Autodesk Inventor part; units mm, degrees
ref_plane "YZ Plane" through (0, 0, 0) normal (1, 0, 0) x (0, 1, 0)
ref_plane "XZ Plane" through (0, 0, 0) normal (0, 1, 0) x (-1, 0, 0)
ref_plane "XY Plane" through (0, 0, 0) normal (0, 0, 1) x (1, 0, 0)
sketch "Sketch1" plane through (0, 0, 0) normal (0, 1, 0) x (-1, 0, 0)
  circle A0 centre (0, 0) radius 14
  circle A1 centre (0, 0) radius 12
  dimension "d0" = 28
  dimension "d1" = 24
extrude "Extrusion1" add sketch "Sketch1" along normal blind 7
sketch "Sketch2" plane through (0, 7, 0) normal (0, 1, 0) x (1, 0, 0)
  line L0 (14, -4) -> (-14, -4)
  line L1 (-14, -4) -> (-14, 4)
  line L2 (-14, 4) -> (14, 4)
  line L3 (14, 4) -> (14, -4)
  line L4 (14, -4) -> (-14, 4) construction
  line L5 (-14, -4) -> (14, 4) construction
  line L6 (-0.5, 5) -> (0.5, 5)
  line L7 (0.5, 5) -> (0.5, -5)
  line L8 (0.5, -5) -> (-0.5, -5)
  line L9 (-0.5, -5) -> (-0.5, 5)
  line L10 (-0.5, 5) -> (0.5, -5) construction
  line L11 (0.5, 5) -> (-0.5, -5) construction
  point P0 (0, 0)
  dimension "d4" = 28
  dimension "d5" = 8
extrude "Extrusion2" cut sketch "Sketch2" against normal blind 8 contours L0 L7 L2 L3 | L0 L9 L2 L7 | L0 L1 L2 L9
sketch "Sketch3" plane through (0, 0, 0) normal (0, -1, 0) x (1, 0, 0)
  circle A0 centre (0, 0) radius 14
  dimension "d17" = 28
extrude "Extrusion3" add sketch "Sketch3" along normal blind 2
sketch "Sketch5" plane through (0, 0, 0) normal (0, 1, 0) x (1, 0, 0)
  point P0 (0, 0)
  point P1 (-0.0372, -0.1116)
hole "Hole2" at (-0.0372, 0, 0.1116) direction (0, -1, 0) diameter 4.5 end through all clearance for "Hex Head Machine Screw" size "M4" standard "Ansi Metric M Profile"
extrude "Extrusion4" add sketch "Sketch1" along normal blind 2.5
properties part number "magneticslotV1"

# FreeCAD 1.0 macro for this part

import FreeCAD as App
import Part
import Sketcher

V = App.Vector
Q = App.Units.Quantity

doc = App.newDocument("Part")
body = doc.addObject("PartDesign::Body", "Body")
body.AllowCompound = True

sketch1 = doc.addObject("Sketcher::SketchObject", "Sketch")
body.addObject(sketch1)
sketch1.AttachmentSupport = (doc.XZ_Plane, [""])
sketch1.MapMode = "FlatFace"
sketch1.addGeometry([
    Part.Circle(V(0, 0, 0), V(0, 0, 1), 14),
    Part.Circle(V(0, 0, 0), V(0, 0, 1), 12),
], False)
sketch1.addConstraint([
    Sketcher.Constraint("Coincident", 0, 3, -1, 1),
    Sketcher.Constraint("Coincident", 1, 3, -1, 1),
    Sketcher.Constraint("Diameter", 0, Q("28 mm")),
    Sketcher.Constraint("Diameter", 1, Q("24 mm")),
])
pad1 = doc.addObject("PartDesign::Pad", "Pad")
body.addObject(pad1)
pad1.Profile = sketch1
pad1.Length = 7
pad1.Reversed = True

sketch2 = doc.addObject("Sketcher::SketchObject", "Sketch001")
body.addObject(sketch2)
sketch2.AttachmentSupport = (doc.XZ_Plane, [""])
sketch2.MapMode = "FlatFace"
sketch2.AttachmentOffset = App.Placement(V(0, 0, -7), App.Rotation())
sketch2.addGeometry([
    Part.LineSegment(V(14, 4, 0), V(14, -4, 0)),
    Part.LineSegment(V(14, -4, 0), V(-14, -4, 0)),
    Part.LineSegment(V(-14, -4, 0), V(-14, 4, 0)),
    Part.LineSegment(V(-14, 4, 0), V(14, 4, 0)),
], False)
sketch2.addConstraint([
    Sketcher.Constraint("Coincident", 0, 2, 1, 1),
    Sketcher.Constraint("Coincident", 1, 2, 2, 1),
    Sketcher.Constraint("Coincident", 2, 2, 3, 1),
    Sketcher.Constraint("Coincident", 3, 2, 0, 1),
    Sketcher.Constraint("Vertical", 0),
    Sketcher.Constraint("Horizontal", 1),
    Sketcher.Constraint("Vertical", 2),
    Sketcher.Constraint("Horizontal", 3),
    Sketcher.Constraint("Symmetric", 0, 2, 2, 2, -1, 1),
    Sketcher.Constraint("DistanceX", 1, 2, 1, 1, Q("28 mm")),
    Sketcher.Constraint("DistanceY", 0, 2, 0, 1, Q("8 mm")),
])
pocket1 = doc.addObject("PartDesign::Pocket", "Pocket")
body.addObject(pocket1)
pocket1.Profile = sketch2
pocket1.Length = 8
pocket1.Reversed = True

sketch3 = doc.addObject("Sketcher::SketchObject", "Sketch002")
body.addObject(sketch3)
sketch3.AttachmentSupport = (doc.XZ_Plane, [""])
sketch3.MapMode = "FlatFace"
sketch3.addGeometry(Part.Circle(V(0, 0, 0), V(0, 0, 1), 14), False)
sketch3.addConstraint([
    Sketcher.Constraint("Coincident", 0, 3, -1, 1),
    Sketcher.Constraint("Diameter", 0, Q("28 mm")),
])
pad2 = doc.addObject("PartDesign::Pad", "Pad001")
body.addObject(pad2)
pad2.Profile = sketch3
pad2.Length = 2

sketch4 = doc.addObject("Sketcher::SketchObject", "Sketch003")
body.addObject(sketch4)
sketch4.AttachmentSupport = (doc.XZ_Plane, [""])
sketch4.MapMode = "FlatFace"
sketch4.addGeometry(Part.Circle(V(-0.0372, 0.1116, 0), V(0, 0, 1), 2.25), False)
sketch4.addConstraint([
    Sketcher.Constraint("Diameter", 0, Q("4.5 mm")),
    Sketcher.Constraint("DistanceX", 0, 3, -1, 1, Q("0.0372 mm")),
    Sketcher.Constraint("DistanceY", -1, 1, 0, 3, Q("0.1116 mm")),
])
doc.recompute()
hole = doc.addObject("PartDesign::Hole", "Hole")
body.addObject(hole)
hole.Profile = sketch4
hole.ThreadType = "None"
hole.Diameter = 4.5
hole.DepthType = "ThroughAll"
hole.Reversed = True

sketch5 = doc.addObject("Sketcher::SketchObject", "Sketch004")
body.addObject(sketch5)
sketch5.AttachmentSupport = (doc.XZ_Plane, [""])
sketch5.MapMode = "FlatFace"
sketch5.addGeometry([
    Part.Circle(V(0, 0, 0), V(0, 0, 1), 14),
    Part.Circle(V(0, 0, 0), V(0, 0, 1), 12),
], False)
sketch5.addConstraint([
    Sketcher.Constraint("Coincident", 0, 3, -1, 1),
    Sketcher.Constraint("Coincident", 1, 3, -1, 1),
    Sketcher.Constraint("Diameter", 0, Q("28 mm")),
    Sketcher.Constraint("Diameter", 1, Q("24 mm")),
])
pad3 = doc.addObject("PartDesign::Pad", "Pad002")
body.addObject(pad3)
pad3.Profile = sketch5
pad3.Length = 2.5
pad3.Reversed = True

doc.recompute()
